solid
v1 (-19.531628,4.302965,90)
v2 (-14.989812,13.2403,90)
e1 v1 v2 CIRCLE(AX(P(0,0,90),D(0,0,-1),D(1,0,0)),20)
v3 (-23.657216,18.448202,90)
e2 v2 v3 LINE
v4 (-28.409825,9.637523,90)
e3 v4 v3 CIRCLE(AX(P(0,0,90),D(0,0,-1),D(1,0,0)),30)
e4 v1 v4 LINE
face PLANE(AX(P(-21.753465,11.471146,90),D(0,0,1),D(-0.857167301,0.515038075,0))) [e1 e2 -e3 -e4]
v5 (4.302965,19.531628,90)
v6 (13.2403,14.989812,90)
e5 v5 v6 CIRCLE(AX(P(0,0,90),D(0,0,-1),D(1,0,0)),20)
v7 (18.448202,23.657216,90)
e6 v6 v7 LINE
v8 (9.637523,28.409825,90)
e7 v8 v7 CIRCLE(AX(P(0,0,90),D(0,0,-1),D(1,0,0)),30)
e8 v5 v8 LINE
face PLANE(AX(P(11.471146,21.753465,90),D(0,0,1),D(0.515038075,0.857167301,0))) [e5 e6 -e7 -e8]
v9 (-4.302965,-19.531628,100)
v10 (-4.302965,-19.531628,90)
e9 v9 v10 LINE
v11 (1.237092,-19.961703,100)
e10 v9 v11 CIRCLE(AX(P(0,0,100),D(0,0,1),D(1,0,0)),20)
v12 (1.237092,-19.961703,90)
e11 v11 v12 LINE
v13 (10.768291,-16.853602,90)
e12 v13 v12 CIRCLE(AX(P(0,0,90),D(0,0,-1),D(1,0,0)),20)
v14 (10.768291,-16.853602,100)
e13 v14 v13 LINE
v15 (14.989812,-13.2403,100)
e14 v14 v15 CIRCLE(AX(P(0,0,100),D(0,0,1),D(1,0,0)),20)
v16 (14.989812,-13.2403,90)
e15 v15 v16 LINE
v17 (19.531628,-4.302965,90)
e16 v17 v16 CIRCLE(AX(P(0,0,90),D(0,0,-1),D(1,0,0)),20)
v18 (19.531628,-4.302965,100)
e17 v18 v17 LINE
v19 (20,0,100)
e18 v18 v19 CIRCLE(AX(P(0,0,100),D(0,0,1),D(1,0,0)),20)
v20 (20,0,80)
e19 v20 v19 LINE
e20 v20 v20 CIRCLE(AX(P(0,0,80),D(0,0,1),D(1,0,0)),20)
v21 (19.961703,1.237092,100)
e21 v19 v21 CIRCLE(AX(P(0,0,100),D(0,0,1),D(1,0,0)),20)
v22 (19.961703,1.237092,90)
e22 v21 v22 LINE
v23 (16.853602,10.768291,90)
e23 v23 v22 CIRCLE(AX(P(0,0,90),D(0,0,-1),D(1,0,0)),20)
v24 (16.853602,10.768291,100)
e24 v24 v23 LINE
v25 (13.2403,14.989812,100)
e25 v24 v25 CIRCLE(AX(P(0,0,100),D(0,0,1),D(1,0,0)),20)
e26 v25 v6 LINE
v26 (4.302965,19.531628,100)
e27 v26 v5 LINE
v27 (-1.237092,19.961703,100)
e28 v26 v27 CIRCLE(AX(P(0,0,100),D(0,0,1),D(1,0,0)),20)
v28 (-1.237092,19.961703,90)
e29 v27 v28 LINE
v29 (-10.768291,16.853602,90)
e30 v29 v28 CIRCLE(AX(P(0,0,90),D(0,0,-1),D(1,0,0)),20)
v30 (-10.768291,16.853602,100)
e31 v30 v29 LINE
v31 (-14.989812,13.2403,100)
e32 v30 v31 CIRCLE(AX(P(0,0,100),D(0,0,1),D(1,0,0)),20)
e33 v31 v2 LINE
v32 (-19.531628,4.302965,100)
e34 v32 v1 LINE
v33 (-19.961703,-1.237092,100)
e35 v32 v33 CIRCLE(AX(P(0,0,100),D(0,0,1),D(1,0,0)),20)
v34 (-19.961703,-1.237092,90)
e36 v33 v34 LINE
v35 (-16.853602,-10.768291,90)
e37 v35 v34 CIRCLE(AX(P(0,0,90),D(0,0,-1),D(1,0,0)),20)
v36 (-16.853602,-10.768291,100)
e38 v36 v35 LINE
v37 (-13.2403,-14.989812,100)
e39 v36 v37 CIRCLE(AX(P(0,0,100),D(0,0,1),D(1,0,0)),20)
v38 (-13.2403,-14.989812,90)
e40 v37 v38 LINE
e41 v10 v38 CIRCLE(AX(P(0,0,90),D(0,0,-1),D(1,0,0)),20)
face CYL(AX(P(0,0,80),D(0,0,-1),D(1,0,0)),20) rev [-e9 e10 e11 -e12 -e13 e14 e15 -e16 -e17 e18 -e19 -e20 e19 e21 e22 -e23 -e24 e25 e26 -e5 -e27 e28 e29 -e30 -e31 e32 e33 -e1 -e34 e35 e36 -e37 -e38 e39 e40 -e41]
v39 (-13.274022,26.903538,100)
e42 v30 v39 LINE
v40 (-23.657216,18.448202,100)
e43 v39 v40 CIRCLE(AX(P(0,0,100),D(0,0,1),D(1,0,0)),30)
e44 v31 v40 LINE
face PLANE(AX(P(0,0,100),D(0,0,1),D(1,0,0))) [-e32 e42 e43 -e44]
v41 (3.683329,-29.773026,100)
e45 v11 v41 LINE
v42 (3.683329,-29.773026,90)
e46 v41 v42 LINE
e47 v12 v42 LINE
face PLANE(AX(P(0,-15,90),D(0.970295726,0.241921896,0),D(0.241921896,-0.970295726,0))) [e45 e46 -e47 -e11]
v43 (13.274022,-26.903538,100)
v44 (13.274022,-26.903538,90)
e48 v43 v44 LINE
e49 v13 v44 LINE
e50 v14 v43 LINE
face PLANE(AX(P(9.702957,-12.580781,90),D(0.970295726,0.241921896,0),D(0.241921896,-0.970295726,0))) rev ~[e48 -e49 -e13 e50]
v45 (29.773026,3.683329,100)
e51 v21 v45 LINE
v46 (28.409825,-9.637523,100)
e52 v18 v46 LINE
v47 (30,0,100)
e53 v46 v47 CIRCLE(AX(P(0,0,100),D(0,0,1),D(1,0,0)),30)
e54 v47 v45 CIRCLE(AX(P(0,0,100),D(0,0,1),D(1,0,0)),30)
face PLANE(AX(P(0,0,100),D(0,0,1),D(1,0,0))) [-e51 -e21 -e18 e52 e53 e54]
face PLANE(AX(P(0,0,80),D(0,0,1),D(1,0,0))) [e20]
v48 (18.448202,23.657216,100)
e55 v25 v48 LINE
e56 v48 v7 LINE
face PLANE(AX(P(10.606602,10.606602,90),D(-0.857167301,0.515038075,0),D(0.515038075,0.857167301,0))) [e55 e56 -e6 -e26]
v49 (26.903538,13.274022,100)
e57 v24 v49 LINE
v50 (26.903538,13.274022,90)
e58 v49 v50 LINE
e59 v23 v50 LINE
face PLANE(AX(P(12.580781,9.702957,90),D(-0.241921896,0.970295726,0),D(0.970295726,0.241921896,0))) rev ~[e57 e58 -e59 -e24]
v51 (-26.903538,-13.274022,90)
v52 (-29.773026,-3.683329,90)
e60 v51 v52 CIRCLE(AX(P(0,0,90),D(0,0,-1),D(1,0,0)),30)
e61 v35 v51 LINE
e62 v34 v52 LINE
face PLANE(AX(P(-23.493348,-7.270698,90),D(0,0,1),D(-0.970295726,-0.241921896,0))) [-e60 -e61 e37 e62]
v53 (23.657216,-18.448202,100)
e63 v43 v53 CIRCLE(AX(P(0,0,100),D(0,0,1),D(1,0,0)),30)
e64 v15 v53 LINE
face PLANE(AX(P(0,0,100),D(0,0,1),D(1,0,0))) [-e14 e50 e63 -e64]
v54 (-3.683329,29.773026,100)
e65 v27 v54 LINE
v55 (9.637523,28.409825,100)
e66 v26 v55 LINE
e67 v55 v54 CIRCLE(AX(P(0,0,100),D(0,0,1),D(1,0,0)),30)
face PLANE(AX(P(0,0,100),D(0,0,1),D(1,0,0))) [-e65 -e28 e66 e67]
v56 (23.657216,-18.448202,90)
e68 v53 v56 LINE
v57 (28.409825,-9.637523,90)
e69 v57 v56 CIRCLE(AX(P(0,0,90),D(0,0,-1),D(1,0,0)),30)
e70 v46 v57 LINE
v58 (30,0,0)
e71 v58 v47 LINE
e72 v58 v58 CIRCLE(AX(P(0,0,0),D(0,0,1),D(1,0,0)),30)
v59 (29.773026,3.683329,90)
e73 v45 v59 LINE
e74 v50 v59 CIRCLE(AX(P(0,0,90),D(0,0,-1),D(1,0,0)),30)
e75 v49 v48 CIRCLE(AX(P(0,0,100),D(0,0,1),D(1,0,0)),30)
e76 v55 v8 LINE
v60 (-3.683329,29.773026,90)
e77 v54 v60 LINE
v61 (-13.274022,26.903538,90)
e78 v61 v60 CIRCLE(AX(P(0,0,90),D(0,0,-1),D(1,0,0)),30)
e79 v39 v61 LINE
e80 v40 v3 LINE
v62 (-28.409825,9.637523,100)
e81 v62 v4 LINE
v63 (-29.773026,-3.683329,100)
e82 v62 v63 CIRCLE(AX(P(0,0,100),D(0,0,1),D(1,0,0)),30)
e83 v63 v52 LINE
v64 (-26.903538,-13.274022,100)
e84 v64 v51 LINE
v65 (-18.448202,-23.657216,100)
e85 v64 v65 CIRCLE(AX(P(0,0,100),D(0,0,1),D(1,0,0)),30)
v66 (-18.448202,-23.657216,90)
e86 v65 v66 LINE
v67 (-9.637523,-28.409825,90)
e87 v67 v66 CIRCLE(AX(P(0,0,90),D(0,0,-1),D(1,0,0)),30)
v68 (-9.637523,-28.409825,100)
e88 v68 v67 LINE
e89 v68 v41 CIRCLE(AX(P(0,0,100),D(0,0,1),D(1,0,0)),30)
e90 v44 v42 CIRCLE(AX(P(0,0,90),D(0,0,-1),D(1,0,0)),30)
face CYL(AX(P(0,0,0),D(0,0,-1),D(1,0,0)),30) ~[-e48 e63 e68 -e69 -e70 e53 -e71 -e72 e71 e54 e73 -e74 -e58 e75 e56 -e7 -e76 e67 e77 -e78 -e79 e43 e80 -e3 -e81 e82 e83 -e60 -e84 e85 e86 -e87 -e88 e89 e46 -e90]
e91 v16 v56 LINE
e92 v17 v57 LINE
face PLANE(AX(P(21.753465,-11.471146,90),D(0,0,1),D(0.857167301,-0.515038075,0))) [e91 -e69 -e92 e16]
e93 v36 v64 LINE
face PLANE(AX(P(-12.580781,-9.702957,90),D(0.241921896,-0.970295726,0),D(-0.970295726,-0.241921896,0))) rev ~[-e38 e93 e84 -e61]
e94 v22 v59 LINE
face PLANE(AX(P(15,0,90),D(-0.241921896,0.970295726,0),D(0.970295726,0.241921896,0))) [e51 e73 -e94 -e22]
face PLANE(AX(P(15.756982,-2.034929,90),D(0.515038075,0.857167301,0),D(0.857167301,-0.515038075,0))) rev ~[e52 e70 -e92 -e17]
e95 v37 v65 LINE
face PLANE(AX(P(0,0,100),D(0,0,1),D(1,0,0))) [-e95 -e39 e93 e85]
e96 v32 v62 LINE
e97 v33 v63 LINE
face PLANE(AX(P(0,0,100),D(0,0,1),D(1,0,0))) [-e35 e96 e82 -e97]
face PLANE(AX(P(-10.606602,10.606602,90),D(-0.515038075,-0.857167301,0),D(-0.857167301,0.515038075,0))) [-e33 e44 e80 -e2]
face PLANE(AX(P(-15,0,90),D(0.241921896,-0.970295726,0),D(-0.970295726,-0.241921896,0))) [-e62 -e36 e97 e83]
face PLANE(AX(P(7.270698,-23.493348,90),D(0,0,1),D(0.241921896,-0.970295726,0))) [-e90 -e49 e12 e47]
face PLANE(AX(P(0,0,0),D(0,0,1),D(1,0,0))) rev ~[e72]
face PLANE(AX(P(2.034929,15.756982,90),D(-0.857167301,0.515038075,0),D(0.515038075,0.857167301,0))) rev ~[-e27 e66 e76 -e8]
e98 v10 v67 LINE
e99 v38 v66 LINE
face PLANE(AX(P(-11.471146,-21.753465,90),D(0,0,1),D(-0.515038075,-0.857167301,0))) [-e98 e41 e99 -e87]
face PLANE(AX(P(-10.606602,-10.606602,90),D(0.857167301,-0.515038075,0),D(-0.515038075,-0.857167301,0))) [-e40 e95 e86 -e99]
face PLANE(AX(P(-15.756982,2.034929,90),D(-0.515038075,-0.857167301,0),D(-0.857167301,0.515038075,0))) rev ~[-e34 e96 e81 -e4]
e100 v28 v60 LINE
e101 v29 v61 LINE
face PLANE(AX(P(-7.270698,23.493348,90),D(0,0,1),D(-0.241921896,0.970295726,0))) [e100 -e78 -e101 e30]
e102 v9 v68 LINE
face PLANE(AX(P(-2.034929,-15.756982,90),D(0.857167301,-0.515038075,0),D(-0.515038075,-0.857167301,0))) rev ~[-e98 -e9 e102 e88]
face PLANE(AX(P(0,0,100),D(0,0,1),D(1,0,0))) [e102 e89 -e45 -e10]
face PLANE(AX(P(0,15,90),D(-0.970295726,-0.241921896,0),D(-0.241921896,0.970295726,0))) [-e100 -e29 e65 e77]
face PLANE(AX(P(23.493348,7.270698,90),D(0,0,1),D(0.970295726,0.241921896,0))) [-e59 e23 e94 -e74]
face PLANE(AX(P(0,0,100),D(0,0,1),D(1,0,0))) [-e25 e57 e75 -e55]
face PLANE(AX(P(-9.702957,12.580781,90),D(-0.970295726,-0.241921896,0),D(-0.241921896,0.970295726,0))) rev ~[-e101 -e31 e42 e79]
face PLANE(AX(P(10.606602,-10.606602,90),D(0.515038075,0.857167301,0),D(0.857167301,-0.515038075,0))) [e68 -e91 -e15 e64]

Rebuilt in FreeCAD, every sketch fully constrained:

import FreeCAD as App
import Part
import Sketcher

V = App.Vector
Q = App.Units.Quantity

doc = App.newDocument("Part")
body = doc.addObject("PartDesign::Body", "Body")

# Sketch on XY plane
sketch1 = doc.addObject("Sketcher::SketchObject", "Sketch")
body.addObject(sketch1)
sketch1.AttachmentSupport = (doc.XY_Plane, [""])
sketch1.MapMode = "FlatFace"
sketch1.addGeometry([
    Part.LineSegment(V(0, 10, 0), V(0, 0, 0)),
    Part.LineSegment(V(0, 0, 0), V(20, 0, 0)),
    Part.LineSegment(V(20, 0, 0), V(20, 10, 0)),
    Part.LineSegment(V(20, 10, 0), V(0, 10, 0)),
], False)
sketch1.addConstraint([
    Sketcher.Constraint("Coincident", 0, 2, 1, 1),
    Sketcher.Constraint("Coincident", 1, 2, 2, 1),
    Sketcher.Constraint("Coincident", 2, 2, 3, 1),
    Sketcher.Constraint("Coincident", 3, 2, 0, 1),
    Sketcher.Constraint("Vertical", 0),
    Sketcher.Constraint("Horizontal", 1),
    Sketcher.Constraint("Vertical", 2),
    Sketcher.Constraint("Horizontal", 3),
    Sketcher.Constraint("Coincident", 0, 2, -1, 1),
    Sketcher.Constraint("DistanceX", 1, 1, 1, 2, Q("20 mm")),
    Sketcher.Constraint("DistanceY", 0, 2, 0, 1, Q("10 mm")),
])
pad1 = doc.addObject("PartDesign::Pad", "Pad")
body.addObject(pad1)
pad1.Profile = sketch1
pad1.Length = 10
body2 = doc.addObject("PartDesign::Body", "Body001")
doc.recompute()

body.Placement = App.Placement(V(15, 0, 90), App.Rotation(V(0, 0, 1), 14))
boolean = doc.addObject("PartDesign::Boolean", "Boolean")
body2.addObject(boolean)
boolean.Type = "Fuse"
boolean.addObjects([body])
body3 = doc.addObject("PartDesign::Body", "Body002")
body3.AllowCompound = True
doc.recompute()

body3.BaseFeature = body2
doc.recompute()

body4 = doc.addObject("PartDesign::Body", "Body003")
body4.BaseFeature = body2
body4.Placement = App.Placement(V(0, 0, 0), App.Rotation(V(0, 0, 1), 45))
boolean2 = doc.addObject("PartDesign::Boolean", "Boolean001")
body3.addObject(boolean2)
boolean2.Type = "Fuse"
boolean2.addObjects([body4])
doc.recompute()

body5 = doc.addObject("PartDesign::Body", "Body004")
body5.BaseFeature = body2
body5.Placement = App.Placement(V(0, 0, 0), App.Rotation(V(0, 0, 1), 90))
boolean3 = doc.addObject("PartDesign::Boolean", "Boolean002")
body3.addObject(boolean3)
boolean3.Type = "Fuse"
boolean3.addObjects([body5])
doc.recompute()

body6 = doc.addObject("PartDesign::Body", "Body005")
body6.BaseFeature = body2
body6.Placement = App.Placement(V(0, 0, 0), App.Rotation(V(0, 0, 1), 135))
boolean4 = doc.addObject("PartDesign::Boolean", "Boolean003")
body3.addObject(boolean4)
boolean4.Type = "Fuse"
boolean4.addObjects([body6])
doc.recompute()

body7 = doc.addObject("PartDesign::Body", "Body006")
body7.BaseFeature = body2
body7.Placement = App.Placement(V(0, 0, 0), App.Rotation(V(0, 0, 1), 180))
boolean5 = doc.addObject("PartDesign::Boolean", "Boolean004")
body3.addObject(boolean5)
boolean5.Type = "Fuse"
boolean5.addObjects([body7])
doc.recompute()

body8 = doc.addObject("PartDesign::Body", "Body007")
body8.BaseFeature = body2
body8.Placement = App.Placement(V(0, 0, 0), App.Rotation(V(0, 0, 1), 225))
boolean6 = doc.addObject("PartDesign::Boolean", "Boolean005")
body3.addObject(boolean6)
boolean6.Type = "Fuse"
boolean6.addObjects([body8])
doc.recompute()

body9 = doc.addObject("PartDesign::Body", "Body008")
body9.BaseFeature = body2
body9.Placement = App.Placement(V(0, 0, 0), App.Rotation(V(0, 0, 1), 270))
boolean7 = doc.addObject("PartDesign::Boolean", "Boolean006")
body3.addObject(boolean7)
boolean7.Type = "Fuse"
boolean7.addObjects([body9])
doc.recompute()

body2.Placement = App.Placement(V(0, 0, 0), App.Rotation(V(0, 0, 1), 315))
boolean8 = doc.addObject("PartDesign::Boolean", "Boolean007")
body3.addObject(boolean8)
boolean8.Type = "Fuse"
boolean8.addObjects([body2])
body10 = doc.addObject("PartDesign::Body", "Body009")

# Sketch on XY plane
sketch2 = doc.addObject("Sketcher::SketchObject", "Sketch001")
body10.addObject(sketch2)
sketch2.AttachmentSupport = (doc.getObject("XY_Plane009"), [""])
sketch2.MapMode = "FlatFace"
sketch2.AttachmentOffset = App.Placement(V(0, 0, 80), App.Rotation())
sketch2.addGeometry(Part.Circle(V(0, 0, 0), V(0, 0, 1), 20), False)
sketch2.addConstraint([
    Sketcher.Constraint("Coincident", 0, 3, -1, 1),
    Sketcher.Constraint("Diameter", 0, Q("40 mm")),
])
pad2 = doc.addObject("PartDesign::Pad", "Pad001")
body10.addObject(pad2)
pad2.Profile = sketch2
pad2.Length = 20
body11 = doc.addObject("PartDesign::Body", "Body010")

# Sketch on XY plane
sketch3 = doc.addObject("Sketcher::SketchObject", "Sketch002")
body11.addObject(sketch3)
sketch3.AttachmentSupport = (doc.getObject("XY_Plane010"), [""])
sketch3.MapMode = "FlatFace"
sketch3.addGeometry(Part.Circle(V(0, 0, 0), V(0, 0, 1), 30), False)
sketch3.addConstraint([
    Sketcher.Constraint("Coincident", 0, 3, -1, 1),
    Sketcher.Constraint("Diameter", 0, Q("60 mm")),
])
pad3 = doc.addObject("PartDesign::Pad", "Pad002")
body11.addObject(pad3)
pad3.Profile = sketch3
pad3.Length = 100
doc.recompute()

boolean9 = doc.addObject("PartDesign::Boolean", "Boolean008")
body11.addObject(boolean9)
boolean9.Type = "Cut"
boolean9.addObjects([body10])
doc.recompute()

boolean10 = doc.addObject("PartDesign::Boolean", "Boolean009")
body11.addObject(boolean10)
boolean10.Type = "Cut"
boolean10.addObjects([body3])

doc.recompute()
